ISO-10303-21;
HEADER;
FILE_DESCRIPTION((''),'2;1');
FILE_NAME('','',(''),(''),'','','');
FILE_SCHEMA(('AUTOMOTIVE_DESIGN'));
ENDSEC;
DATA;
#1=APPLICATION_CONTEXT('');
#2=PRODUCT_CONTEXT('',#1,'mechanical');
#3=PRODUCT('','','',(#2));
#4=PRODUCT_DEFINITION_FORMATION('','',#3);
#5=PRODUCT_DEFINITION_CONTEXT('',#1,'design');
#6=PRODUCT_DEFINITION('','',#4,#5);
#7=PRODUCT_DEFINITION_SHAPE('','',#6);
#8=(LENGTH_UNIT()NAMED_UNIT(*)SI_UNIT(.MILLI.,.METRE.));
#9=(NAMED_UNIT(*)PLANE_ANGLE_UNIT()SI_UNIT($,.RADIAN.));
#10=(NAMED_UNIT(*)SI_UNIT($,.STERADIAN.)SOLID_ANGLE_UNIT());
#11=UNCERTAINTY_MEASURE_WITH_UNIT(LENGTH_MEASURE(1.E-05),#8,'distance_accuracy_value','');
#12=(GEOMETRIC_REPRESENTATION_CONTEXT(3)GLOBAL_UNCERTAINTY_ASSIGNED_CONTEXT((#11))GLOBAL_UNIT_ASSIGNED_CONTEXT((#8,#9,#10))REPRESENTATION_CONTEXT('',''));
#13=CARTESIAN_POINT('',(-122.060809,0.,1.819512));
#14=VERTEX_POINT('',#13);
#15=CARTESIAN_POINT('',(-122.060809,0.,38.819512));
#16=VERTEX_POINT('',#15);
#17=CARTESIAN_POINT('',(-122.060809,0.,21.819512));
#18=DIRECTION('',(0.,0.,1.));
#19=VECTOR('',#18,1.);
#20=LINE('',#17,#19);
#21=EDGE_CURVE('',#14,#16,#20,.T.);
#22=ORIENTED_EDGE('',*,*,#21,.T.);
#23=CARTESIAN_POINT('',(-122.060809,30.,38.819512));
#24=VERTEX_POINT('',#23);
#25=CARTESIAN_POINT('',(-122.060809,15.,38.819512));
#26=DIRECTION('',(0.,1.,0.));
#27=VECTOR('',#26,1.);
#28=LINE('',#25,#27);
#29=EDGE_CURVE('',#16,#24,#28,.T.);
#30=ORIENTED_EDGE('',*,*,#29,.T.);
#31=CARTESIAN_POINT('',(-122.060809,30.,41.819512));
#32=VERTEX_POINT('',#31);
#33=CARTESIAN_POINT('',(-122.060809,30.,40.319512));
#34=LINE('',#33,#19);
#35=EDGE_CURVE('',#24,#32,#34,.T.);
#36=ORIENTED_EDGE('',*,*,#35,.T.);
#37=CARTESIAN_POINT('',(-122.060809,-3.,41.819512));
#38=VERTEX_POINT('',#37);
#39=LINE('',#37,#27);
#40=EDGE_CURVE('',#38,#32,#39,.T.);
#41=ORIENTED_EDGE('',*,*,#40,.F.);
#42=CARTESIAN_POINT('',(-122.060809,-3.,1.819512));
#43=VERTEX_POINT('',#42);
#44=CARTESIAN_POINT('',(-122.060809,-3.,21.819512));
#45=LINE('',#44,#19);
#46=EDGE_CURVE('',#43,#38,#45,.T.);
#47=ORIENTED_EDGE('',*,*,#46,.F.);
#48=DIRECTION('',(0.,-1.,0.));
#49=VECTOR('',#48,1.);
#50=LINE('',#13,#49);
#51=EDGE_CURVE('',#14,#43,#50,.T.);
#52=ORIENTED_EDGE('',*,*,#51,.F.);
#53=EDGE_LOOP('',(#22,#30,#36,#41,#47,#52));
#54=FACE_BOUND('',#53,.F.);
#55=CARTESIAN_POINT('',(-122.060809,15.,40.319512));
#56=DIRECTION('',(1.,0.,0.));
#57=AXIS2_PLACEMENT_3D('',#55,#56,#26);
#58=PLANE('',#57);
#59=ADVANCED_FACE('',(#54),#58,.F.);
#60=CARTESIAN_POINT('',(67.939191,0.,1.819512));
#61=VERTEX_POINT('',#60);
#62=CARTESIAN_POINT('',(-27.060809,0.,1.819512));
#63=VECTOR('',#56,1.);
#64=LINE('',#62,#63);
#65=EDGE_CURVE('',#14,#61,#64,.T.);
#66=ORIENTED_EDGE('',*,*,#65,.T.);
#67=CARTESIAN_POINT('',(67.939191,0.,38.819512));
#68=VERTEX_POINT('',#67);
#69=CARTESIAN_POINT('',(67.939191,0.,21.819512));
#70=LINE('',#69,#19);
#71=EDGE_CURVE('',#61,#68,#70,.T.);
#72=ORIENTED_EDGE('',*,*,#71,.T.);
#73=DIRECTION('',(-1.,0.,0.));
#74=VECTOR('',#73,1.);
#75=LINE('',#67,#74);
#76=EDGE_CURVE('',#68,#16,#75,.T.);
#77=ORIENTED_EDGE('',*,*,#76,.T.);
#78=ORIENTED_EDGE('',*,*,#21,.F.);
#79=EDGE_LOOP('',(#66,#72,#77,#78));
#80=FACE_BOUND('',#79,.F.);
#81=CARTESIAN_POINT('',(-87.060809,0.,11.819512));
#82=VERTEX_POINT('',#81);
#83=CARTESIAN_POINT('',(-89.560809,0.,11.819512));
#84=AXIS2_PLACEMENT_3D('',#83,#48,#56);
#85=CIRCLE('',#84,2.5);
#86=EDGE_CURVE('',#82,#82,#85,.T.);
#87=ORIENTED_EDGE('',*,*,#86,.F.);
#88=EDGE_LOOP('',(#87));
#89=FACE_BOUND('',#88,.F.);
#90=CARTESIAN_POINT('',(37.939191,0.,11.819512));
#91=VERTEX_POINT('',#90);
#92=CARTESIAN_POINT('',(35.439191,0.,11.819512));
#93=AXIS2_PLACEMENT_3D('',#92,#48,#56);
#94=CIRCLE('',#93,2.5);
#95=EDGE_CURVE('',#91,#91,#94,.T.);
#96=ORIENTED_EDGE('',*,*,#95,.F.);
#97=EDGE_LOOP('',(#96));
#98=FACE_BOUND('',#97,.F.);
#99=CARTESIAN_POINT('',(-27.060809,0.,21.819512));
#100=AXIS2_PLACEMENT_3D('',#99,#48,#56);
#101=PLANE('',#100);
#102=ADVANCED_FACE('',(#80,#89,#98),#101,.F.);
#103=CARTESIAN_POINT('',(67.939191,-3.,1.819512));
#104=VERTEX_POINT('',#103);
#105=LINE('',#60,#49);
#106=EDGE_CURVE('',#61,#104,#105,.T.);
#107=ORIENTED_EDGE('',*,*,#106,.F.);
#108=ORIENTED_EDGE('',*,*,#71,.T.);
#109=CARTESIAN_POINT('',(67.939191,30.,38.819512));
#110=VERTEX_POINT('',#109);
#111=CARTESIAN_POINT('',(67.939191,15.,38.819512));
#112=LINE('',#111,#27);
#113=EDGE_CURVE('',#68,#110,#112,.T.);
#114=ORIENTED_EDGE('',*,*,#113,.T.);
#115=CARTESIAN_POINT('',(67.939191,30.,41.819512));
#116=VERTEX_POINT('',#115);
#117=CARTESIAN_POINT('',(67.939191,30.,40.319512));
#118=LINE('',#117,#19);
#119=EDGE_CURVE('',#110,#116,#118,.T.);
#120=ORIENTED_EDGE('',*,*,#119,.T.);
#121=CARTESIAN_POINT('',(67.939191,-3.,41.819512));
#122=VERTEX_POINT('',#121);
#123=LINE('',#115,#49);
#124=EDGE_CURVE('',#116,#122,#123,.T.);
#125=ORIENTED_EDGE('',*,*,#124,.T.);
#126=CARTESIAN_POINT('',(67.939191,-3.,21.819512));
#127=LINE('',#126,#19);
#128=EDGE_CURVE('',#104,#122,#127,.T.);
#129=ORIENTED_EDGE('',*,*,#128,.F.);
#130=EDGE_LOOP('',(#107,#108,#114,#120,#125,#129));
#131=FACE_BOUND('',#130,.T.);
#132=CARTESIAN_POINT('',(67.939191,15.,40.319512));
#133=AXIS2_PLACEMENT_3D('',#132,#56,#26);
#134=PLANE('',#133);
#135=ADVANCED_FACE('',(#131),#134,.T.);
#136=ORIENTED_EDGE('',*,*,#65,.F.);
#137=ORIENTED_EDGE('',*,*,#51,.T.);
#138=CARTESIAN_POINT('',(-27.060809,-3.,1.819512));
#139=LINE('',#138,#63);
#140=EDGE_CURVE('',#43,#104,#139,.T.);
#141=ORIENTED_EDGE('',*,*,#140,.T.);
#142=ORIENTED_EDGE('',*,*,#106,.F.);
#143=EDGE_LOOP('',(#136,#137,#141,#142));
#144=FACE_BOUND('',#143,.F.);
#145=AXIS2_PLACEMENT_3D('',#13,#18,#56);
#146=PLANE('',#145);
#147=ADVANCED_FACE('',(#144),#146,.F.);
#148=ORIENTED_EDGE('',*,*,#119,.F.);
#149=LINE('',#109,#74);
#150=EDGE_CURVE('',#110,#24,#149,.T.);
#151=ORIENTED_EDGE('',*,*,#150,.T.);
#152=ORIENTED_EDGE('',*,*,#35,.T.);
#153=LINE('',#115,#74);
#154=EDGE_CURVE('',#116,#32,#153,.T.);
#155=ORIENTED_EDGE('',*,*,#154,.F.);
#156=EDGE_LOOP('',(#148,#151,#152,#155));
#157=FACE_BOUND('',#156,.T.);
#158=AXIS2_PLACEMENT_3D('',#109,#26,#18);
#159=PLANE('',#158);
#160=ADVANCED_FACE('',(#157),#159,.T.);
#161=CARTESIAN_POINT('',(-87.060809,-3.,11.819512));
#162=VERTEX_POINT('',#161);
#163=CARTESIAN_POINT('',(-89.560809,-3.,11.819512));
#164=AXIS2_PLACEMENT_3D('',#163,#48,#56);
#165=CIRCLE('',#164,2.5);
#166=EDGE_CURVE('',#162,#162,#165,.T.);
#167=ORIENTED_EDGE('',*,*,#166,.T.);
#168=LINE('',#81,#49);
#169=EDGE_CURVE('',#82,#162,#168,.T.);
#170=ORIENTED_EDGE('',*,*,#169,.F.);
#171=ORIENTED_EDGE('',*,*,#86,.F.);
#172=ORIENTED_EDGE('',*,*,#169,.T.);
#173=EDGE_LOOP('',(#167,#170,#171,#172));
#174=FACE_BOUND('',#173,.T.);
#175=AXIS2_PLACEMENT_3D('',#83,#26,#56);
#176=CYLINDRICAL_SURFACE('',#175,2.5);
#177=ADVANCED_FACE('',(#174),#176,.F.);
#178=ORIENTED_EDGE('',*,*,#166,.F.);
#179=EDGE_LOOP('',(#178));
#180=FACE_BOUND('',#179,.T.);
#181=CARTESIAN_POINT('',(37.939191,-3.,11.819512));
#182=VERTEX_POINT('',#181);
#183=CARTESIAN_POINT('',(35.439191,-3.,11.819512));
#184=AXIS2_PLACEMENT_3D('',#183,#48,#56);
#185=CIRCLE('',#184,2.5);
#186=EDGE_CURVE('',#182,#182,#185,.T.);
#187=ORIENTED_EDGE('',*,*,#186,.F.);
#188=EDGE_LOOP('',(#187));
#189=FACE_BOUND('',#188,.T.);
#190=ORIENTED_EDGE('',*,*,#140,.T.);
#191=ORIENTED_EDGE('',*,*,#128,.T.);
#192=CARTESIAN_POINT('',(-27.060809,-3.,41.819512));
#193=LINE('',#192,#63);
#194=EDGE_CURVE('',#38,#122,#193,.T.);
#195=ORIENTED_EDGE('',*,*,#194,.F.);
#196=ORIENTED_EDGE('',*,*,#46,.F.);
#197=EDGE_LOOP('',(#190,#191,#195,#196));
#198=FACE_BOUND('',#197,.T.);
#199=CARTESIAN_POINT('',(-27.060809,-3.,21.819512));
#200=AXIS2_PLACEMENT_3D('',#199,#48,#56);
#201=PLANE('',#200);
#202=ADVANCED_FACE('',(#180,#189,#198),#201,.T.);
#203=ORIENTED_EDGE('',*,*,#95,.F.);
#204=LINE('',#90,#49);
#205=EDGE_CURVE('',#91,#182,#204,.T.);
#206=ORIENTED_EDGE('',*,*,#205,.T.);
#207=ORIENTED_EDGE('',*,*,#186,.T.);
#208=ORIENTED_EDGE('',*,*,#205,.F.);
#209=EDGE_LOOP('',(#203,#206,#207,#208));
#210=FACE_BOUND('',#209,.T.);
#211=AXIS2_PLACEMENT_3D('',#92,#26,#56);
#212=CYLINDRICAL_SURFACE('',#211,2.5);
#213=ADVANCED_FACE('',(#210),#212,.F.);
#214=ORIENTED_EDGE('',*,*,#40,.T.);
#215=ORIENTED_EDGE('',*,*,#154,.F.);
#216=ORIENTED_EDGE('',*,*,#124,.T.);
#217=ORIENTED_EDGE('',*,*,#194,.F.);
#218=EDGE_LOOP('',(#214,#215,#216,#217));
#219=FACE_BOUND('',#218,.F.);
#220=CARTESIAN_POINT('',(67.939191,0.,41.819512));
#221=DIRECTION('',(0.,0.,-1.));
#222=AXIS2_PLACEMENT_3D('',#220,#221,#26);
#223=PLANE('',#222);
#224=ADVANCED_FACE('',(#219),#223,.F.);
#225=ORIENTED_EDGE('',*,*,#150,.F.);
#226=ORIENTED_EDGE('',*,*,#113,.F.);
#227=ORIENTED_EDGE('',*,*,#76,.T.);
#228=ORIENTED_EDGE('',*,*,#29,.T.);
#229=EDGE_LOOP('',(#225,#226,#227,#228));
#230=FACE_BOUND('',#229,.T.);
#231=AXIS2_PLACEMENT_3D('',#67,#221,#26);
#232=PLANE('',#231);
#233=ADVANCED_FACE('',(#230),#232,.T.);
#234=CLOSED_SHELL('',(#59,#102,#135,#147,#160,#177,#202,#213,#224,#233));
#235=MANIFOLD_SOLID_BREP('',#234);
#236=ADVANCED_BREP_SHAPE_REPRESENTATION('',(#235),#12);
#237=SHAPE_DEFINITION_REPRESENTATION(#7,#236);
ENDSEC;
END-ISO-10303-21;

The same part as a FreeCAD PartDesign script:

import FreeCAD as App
import Part
import Sketcher

V = App.Vector
Q = App.Units.Quantity


def add_polygon(sketch, points):
    """Adds a closed chain of lines whose ends are joined by coincident constraints."""
    first, n = sketch.GeometryCount, len(points)
    for a, b in zip(points, points[1:] + points[:1]):
        sketch.addGeometry(Part.LineSegment(App.Vector(*a, 0), App.Vector(*b, 0)), False)
    for i in range(n):
        sketch.addConstraint(Sketcher.Constraint("Coincident", first + i, 2, first + (i + 1) % n, 1))

doc = App.newDocument("Part")
body = doc.addObject("PartDesign::Body", "Body")

# Sketch on XZ plane
sketch1 = body.newObject("Sketcher::SketchObject", "Sketch")
sketch1.AttachmentSupport = (doc.getObject("XZ_Plane"), [""])
sketch1.MapMode = "FlatFace"
add_polygon(sketch1, [(-122.060809, 41.819512), (-122.060809, 1.819512), (67.939191, 1.819512), (67.939191, 41.819512)])  # lines 0-3
sketch1.addGeometry(Part.Circle(V(-89.560809, 11.819512, 0), V(0, 0, 1), 2.5), False)  # 4
sketch1.addGeometry(Part.Circle(V(35.439191, 11.819512, 0), V(0, 0, 1), 2.5), False)  # 5
sketch1.addConstraint([
    Sketcher.Constraint("Vertical", 0),
    Sketcher.Constraint("Horizontal", 1),
    Sketcher.Constraint("Vertical", 2),
    Sketcher.Constraint("Horizontal", 3),
    Sketcher.Constraint("Equal", 4, 5),
    Sketcher.Constraint("Horizontal", 4, 3, 5, 3),
    Sketcher.Constraint("Diameter", 4, Q("5 mm")),
    Sketcher.Constraint("DistanceX", 1, 1, 1, 2, Q("190 mm")),
    Sketcher.Constraint("DistanceY", 0, 2, 0, 1, Q("40 mm")),
    Sketcher.Constraint("DistanceX", 4, 3, 5, 3, Q("125 mm")),
    Sketcher.Constraint("DistanceY", 0, 2, 4, 3, Q("10 mm")),
    Sketcher.Constraint("DistanceX", 0, 2, 4, 3, Q("32.5 mm")),
    Sketcher.Constraint("DistanceX", 4, 3, -1, 1, Q("89.560809 mm")),
    Sketcher.Constraint("DistanceY", -1, 1, 4, 3, Q("11.819512 mm")),
])
pad1 = body.newObject("PartDesign::Pad", "Pad")
pad1.Profile = sketch1
pad1.Length = 3

# Sketch on YZ plane
sketch2 = body.newObject("Sketcher::SketchObject", "Sketch001")
sketch2.AttachmentSupport = (doc.getObject("YZ_Plane"), [""])
sketch2.MapMode = "FlatFace"
sketch2.AttachmentOffset = App.Placement(V(0, 0, 67.939191), App.Rotation())
add_polygon(sketch2, [(0, 41.819512), (0, 38.819512), (30, 38.819512), (30, 41.819512)])  # lines 0-3
sketch2.addConstraint([
    Sketcher.Constraint("Vertical", 0),
    Sketcher.Constraint("Horizontal", 1),
    Sketcher.Constraint("Vertical", 2),
    Sketcher.Constraint("Horizontal", 3),
    Sketcher.Constraint("PointOnObject", 0, 2, -2),
    Sketcher.Constraint("DistanceX", 1, 1, 1, 2, Q("30 mm")),
    Sketcher.Constraint("DistanceY", 0, 2, 0, 1, Q("3 mm")),
    Sketcher.Constraint("DistanceY", -1, 1, 0, 2, Q("38.819512 mm")),
])
pad2 = body.newObject("PartDesign::Pad", "Pad001")
pad2.Profile = sketch2
pad2.Length = 190
pad2.Reversed = True

doc.recompute()
